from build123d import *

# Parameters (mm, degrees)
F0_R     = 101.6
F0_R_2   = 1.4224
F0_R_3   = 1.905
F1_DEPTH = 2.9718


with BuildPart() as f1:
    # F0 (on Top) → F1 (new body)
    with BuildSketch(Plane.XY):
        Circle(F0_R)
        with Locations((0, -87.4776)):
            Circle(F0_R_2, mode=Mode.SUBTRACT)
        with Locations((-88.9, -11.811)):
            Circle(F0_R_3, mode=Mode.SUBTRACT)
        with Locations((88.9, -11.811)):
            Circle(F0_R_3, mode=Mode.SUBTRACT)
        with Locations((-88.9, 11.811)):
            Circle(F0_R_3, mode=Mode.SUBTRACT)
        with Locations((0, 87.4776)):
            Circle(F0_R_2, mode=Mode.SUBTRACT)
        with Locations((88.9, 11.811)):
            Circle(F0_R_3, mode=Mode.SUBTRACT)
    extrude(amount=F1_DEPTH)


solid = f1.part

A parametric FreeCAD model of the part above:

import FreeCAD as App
import Part
import Sketcher

V = App.Vector
Q = App.Units.Quantity

doc = App.newDocument("Part")
params = doc.addObject("Spreadsheet::Sheet", "Params")
for row, (alias, value) in enumerate([
    ("sketch1_diameter", "8 in"),
    ("sketch1_diameter2", "0.15 in"),
    ("sketch1_diameter3", "0.112 in"),
    ("pad1_length", "0.117 in"),
], start=1):
    params.set(f"A{row}", alias)
    params.set(f"B{row}", "=" + value)
    params.setAlias(f"B{row}", alias)

body = doc.addObject("PartDesign::Body", "Body")

# Sketch on XY plane
sketch1 = body.newObject("Sketcher::SketchObject", "Sketch")
sketch1.AttachmentSupport = (doc.getObject("XY_Plane"), [""])
sketch1.MapMode = "FlatFace"
sketch1.addGeometry([
    Part.Circle(V(0, 0, 0), V(0, 0, 1), 101.6),  # 0
    Part.Circle(V(-88.9, -11.8, 0), V(0, 0, 1), 1.9),  # 1
    Part.Circle(V(0, -87.5, 0), V(0, 0, 1), 1.4),  # 2
    Part.Circle(V(88.9, -11.8, 0), V(0, 0, 1), 1.9),  # 3
    Part.Circle(V(-88.9, 11.8, 0), V(0, 0, 1), 1.9),  # 4
    Part.Circle(V(88.9, 11.8, 0), V(0, 0, 1), 1.9),  # 5
    Part.Circle(V(0, 87.5, 0), V(0, 0, 1), 1.4),  # 6
], False)
sketch1.addConstraint([
    Sketcher.Constraint("Coincident", 0, 3, -1, 1),
    Sketcher.Constraint("Equal", 1, 3),
    Sketcher.Constraint("Equal", 3, 4),
    Sketcher.Constraint("Equal", 4, 5),
    Sketcher.Constraint("Equal", 2, 6),
    Sketcher.Constraint("Symmetric", 3, 3, 4, 3, -1, 1),
    Sketcher.Constraint("Symmetric", 1, 3, 5, 3, -1, 1),
    Sketcher.Constraint("Symmetric", 2, 3, 6, 3, -1, 1),
    Sketcher.Constraint("Symmetric", 1, 3, 3, 3, -2),
    Sketcher.Constraint("PointOnObject", 2, 3, -2),
    Sketcher.Constraint("Diameter", 0, Q("8 in")),
    Sketcher.Constraint("Diameter", 1, Q("0.15 in")),
    Sketcher.Constraint("Diameter", 2, Q("0.112 in")),
    Sketcher.Constraint("DistanceX", 1, 3, 3, 3, Q("7 in")),
    Sketcher.Constraint("DistanceY", 1, 3, 4, 3, Q("0.93 in")),
    Sketcher.Constraint("DistanceY", 2, 3, -1, 1, Q("3.444 in")),
])
sketch1.setExpression("Constraints[10]", "Params.sketch1_diameter")
sketch1.setExpression("Constraints[11]", "Params.sketch1_diameter2")
sketch1.setExpression("Constraints[12]", "Params.sketch1_diameter3")
pad1 = body.newObject("PartDesign::Pad", "Pad")
pad1.Profile = sketch1
pad1.setExpression("Length", "Params.pad1_length")

doc.recompute()
